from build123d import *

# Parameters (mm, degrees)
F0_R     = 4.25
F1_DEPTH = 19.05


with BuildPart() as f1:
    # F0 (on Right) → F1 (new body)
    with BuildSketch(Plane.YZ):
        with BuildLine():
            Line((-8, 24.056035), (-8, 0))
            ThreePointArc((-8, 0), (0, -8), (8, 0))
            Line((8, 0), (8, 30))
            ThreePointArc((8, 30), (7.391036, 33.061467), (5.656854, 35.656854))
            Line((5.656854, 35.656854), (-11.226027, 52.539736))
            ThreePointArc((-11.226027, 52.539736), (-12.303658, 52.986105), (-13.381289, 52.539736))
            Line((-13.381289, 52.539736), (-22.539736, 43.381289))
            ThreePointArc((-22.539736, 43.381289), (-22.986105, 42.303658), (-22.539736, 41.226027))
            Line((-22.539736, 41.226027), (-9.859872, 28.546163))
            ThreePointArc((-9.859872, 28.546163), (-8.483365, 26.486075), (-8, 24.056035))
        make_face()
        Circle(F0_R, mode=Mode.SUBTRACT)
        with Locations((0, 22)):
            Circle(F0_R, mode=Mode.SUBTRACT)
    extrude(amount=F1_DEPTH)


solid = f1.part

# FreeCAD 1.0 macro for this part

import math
import FreeCAD as App
import Part
import Sketcher
Q = App.Units.Quantity

doc = App.newDocument("Part")
params = doc.addObject("Spreadsheet::Sheet", "Params")
for row, (alias, value) in enumerate([
    ("sketch1_radius", "0.0600001 in"),
    ("sketch1_radius2", "0.25 in"),
    ("sketch1_length", "0.94 in"),
    ("pad1_length", "0.75 in"),
], start=1):
    params.set(f"A{row}", alias)
    params.set(f"B{row}", "=" + value)
    params.setAlias(f"B{row}", alias)

body = doc.addObject("PartDesign::Body", "Body")

# Sketch on YZ plane
sketch1 = doc.addObject("Sketcher::SketchObject", "Sketch")
body.addObject(sketch1)
sketch1.AttachmentSupport = (doc.YZ_Plane, [""])
sketch1.MapMode = "FlatFace"
sketch1.addGeometry([
    Part.LineSegment(App.Vector(-8, 24.1, 0), App.Vector(-8, 0, 0)),  # 0
    Part.ArcOfCircle(Part.Circle(App.Vector(0, 0, 0), App.Vector(0, 0, 1), 8), math.radians(180), math.radians(360)),  # 1
    Part.LineSegment(App.Vector(8, 0, 0), App.Vector(8, 30, 0)),  # 2
    Part.ArcOfCircle(Part.Circle(App.Vector(0, 30, 0), App.Vector(0, 0, 1), 8), math.radians(0), math.radians(45)),  # 3
    Part.LineSegment(App.Vector(5.7, 35.7, 0), App.Vector(-11.2, 52.5, 0)),  # 4
    Part.ArcOfCircle(Part.Circle(App.Vector(-12.3, 51.5, 0), App.Vector(0, 0, 1), 1.5), math.radians(45), math.radians(135)),  # 5
    Part.LineSegment(App.Vector(-13.4, 52.5, 0), App.Vector(-22.5, 43.4, 0)),  # 6
    Part.ArcOfCircle(Part.Circle(App.Vector(-21.5, 42.3, 0), App.Vector(0, 0, 1), 1.5), math.radians(135), math.radians(225)),  # 7
    Part.LineSegment(App.Vector(-22.5, 41.2, 0), App.Vector(-9.9, 28.5, 0)),  # 8
    Part.ArcOfCircle(Part.Circle(App.Vector(-14.3, 24.1, 0), App.Vector(0, 0, 1), 6.3), math.radians(0), math.radians(45)),  # 9
    Part.Circle(App.Vector(0, 0, 0), App.Vector(0, 0, 1), 4.2),  # 10
    Part.Circle(App.Vector(0, 22, 0), App.Vector(0, 0, 1), 4.2),  # 11
], False)
sketch1.addConstraint([
    Sketcher.Constraint("Tangent", 0, 2, 1, 1),
    Sketcher.Constraint("Tangent", 1, 2, 2, 1),
    Sketcher.Constraint("Tangent", 2, 2, 3, 1),
    Sketcher.Constraint("Tangent", 3, 2, 4, 1),
    Sketcher.Constraint("Tangent", 4, 2, 5, 1),
    Sketcher.Constraint("Tangent", 5, 2, 6, 1),
    Sketcher.Constraint("Tangent", 6, 2, 7, 1),
    Sketcher.Constraint("Tangent", 7, 2, 8, 1),
    Sketcher.Constraint("Tangent", 8, 2, 9, 2),
    Sketcher.Constraint("Tangent", 9, 1, 0, 1),
    Sketcher.Constraint("Vertical", 0),
    Sketcher.Constraint("Vertical", 2),
    Sketcher.Constraint("Coincident", 1, 3, -1, 1),
    Sketcher.Constraint("Coincident", 10, 3, -1, 1),
    Sketcher.Constraint("Equal", 5, 7),
    Sketcher.Constraint("Equal", 10, 11),
    Sketcher.Constraint("PointOnObject", 11, 3, -2),
    Sketcher.Constraint("Perpendicular", 4, 6),
    Sketcher.Constraint("Perpendicular", 6, 8),
    Sketcher.Constraint("Horizontal", 4, 2, 5, 2),
    Sketcher.Constraint("Radius", 5, Q("0.0600001 in")),
    Sketcher.Constraint("Radius", 9, Q("0.25 in")),
    Sketcher.Constraint("Distance", 4, Q("0.94 in")),
    Sketcher.Constraint("Diameter", 10, 8.5),
    Sketcher.Constraint("Radius", 1, 8.0),
    Sketcher.Constraint("DistanceY", 2, 1, 2, 2, 30.0),
    Sketcher.Constraint("Radius", 3, 8.000003),
    Sketcher.Constraint("Distance", 6, 12.952),
    Sketcher.Constraint("DistanceY", -1, 1, 11, 3, 22.0),
])
sketch1.setExpression("Constraints[20]", "Params.sketch1_radius")
sketch1.setExpression("Constraints[21]", "Params.sketch1_radius2")
sketch1.setExpression("Constraints[22]", "Params.sketch1_length")
pad1 = doc.addObject("PartDesign::Pad", "Pad")
body.addObject(pad1)
pad1.Profile = sketch1
pad1.setExpression("Length", "Params.pad1_length")

doc.recompute()
